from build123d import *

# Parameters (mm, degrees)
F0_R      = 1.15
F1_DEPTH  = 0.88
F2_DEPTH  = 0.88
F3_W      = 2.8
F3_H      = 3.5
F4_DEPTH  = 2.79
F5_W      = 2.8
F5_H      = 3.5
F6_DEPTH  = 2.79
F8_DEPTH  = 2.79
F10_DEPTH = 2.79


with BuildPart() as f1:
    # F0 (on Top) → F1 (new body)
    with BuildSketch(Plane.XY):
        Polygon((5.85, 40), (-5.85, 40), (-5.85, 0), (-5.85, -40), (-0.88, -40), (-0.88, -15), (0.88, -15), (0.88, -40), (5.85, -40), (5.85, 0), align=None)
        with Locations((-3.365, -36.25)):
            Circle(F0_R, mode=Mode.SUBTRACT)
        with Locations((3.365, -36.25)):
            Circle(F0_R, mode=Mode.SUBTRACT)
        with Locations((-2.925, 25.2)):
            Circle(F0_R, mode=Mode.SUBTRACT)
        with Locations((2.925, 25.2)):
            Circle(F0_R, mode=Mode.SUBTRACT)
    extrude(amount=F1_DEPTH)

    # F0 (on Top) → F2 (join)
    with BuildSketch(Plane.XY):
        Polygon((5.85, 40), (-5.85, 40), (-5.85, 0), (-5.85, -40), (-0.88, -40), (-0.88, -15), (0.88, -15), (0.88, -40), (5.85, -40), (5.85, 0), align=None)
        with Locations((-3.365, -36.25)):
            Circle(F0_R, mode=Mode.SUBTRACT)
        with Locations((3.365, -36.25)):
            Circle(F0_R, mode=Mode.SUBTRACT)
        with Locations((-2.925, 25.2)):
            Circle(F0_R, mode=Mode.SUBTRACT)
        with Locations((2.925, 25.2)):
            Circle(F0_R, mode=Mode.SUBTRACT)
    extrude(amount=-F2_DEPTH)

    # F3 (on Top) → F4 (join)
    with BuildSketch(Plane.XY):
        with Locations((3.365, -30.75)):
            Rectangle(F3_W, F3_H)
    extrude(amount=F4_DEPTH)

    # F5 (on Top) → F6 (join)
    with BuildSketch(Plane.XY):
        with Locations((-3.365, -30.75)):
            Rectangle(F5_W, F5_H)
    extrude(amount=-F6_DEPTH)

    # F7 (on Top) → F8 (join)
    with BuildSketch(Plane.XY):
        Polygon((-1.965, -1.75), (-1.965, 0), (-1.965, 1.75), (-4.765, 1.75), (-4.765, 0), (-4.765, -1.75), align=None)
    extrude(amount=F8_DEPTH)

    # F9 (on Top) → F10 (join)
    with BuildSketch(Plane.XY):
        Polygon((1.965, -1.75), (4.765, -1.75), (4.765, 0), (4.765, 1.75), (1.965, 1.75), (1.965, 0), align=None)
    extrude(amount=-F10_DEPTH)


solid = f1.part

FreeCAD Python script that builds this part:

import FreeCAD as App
import Part
import Sketcher

V = App.Vector
Q = App.Units.Quantity

doc = App.newDocument("Part")
params = doc.addObject("Spreadsheet::Sheet", "Params")
for row, (alias, value) in enumerate([
    ("sketch1_diameter", "2.3 mm"),
    ("sketch1_height", "80 mm"),
    ("sketch1_height2", "25 mm"),
    ("sketch1_width", "11.7 mm"),
    ("sketch1_width2", "4.97 mm"),
    ("pad1_length", "0.88 mm"),
    ("sketch2_diameter", "2.3 mm"),
    ("sketch2_height", "80 mm"),
    ("sketch2_height2", "25 mm"),
    ("sketch2_width", "11.7 mm"),
    ("sketch2_width2", "4.97 mm"),
    ("pad2_length", "0.88 mm"),
    ("sketch3_width", "2.8 mm"),
    ("sketch3_height", "3.5 mm"),
    ("pad3_length", "2.79 mm"),
    ("sketch4_width", "2.8 mm"),
    ("sketch4_height", "3.5 mm"),
    ("pad4_length", "2.79 mm"),
    ("sketch5_width", "2.8 mm"),
    ("sketch5_height", "3.5 mm"),
    ("pad5_length", "2.79 mm"),
    ("sketch6_width", "2.8 mm"),
    ("sketch6_height", "3.5 mm"),
    ("pad6_length", "2.79 mm"),
], start=1):
    params.set(f"A{row}", alias)
    params.set(f"B{row}", "=" + value)
    params.setAlias(f"B{row}", alias)

body = doc.addObject("PartDesign::Body", "Body")

# Sketch on XY plane
sketch1 = body.newObject("Sketcher::SketchObject", "Sketch")
sketch1.AttachmentSupport = (doc.getObject("XY_Plane"), [""])
sketch1.MapMode = "FlatFace"
sketch1.addGeometry(Part.LineSegment(V(5.85, 40, 0), V(-5.85, 40, 0)), False)
sketch1.addGeometry(Part.LineSegment(V(-5.85, 40, 0), V(-5.85, -40, 0)), False)
sketch1.addGeometry(Part.LineSegment(V(-5.85, -40, 0), V(-0.88, -40, 0)), False)
sketch1.addGeometry(Part.LineSegment(V(-0.88, -40, 0), V(-0.88, -15, 0)), False)
sketch1.addGeometry(Part.LineSegment(V(-0.88, -15, 0), V(0.88, -15, 0)), False)
sketch1.addGeometry(Part.LineSegment(V(0.88, -15, 0), V(0.88, -40, 0)), False)
sketch1.addGeometry(Part.LineSegment(V(0.88, -40, 0), V(5.85, -40, 0)), False)
sketch1.addGeometry(Part.LineSegment(V(5.85, -40, 0), V(5.85, 40, 0)), False)
sketch1.addGeometry(Part.Circle(V(-3.365, -36.25, 0), V(0, 0, 1), 1.15), False)
sketch1.addGeometry(Part.Circle(V(3.365, -36.25, 0), V(0, 0, 1), 1.15), False)
sketch1.addGeometry(Part.Circle(V(-2.925, 25.2, 0), V(0, 0, 1), 1.15), False)
sketch1.addGeometry(Part.Circle(V(2.925, 25.2, 0), V(0, 0, 1), 1.15), False)
sketch1.addConstraint(Sketcher.Constraint("Coincident", 0, 2, 1, 1))
sketch1.addConstraint(Sketcher.Constraint("Coincident", 1, 2, 2, 1))
sketch1.addConstraint(Sketcher.Constraint("Coincident", 2, 2, 3, 1))
sketch1.addConstraint(Sketcher.Constraint("Coincident", 3, 2, 4, 1))
sketch1.addConstraint(Sketcher.Constraint("Coincident", 4, 2, 5, 1))
sketch1.addConstraint(Sketcher.Constraint("Coincident", 5, 2, 6, 1))
sketch1.addConstraint(Sketcher.Constraint("Coincident", 6, 2, 7, 1))
sketch1.addConstraint(Sketcher.Constraint("Coincident", 7, 2, 0, 1))
sketch1.addConstraint(Sketcher.Constraint("Horizontal", 0))
sketch1.addConstraint(Sketcher.Constraint("Vertical", 1))
sketch1.addConstraint(Sketcher.Constraint("Horizontal", 2))
sketch1.addConstraint(Sketcher.Constraint("Vertical", 3))
sketch1.addConstraint(Sketcher.Constraint("Horizontal", 4))
sketch1.addConstraint(Sketcher.Constraint("Vertical", 5))
sketch1.addConstraint(Sketcher.Constraint("Horizontal", 6))
sketch1.addConstraint(Sketcher.Constraint("Vertical", 7))
sketch1.addConstraint(Sketcher.Constraint("Equal", 8, 9))
sketch1.addConstraint(Sketcher.Constraint("Equal", 9, 10))
sketch1.addConstraint(Sketcher.Constraint("Equal", 10, 11))
sketch1.addConstraint(Sketcher.Constraint("Symmetric", 0, 2, 6, 2, -1, 1))
sketch1.addConstraint(Sketcher.Constraint("Symmetric", 8, 3, 9, 3, -2))
sketch1.addConstraint(Sketcher.Constraint("Symmetric", 10, 3, 11, 3, -2))
sketch1.addConstraint(Sketcher.Constraint("Symmetric", 2, 2, 5, 2, -2))
sketch1.addConstraint(Sketcher.Constraint("Diameter", 8, Q("2.3 mm")))
sketch1.addConstraint(Sketcher.Constraint("DistanceY", 1, 2, 1, 1, Q("80 mm")))
sketch1.addConstraint(Sketcher.Constraint("DistanceY", 3, 1, 3, 2, Q("25 mm")))
sketch1.addConstraint(Sketcher.Constraint("DistanceX", 0, 2, 0, 1, Q("11.7 mm")))
sketch1.addConstraint(Sketcher.Constraint("DistanceX", 2, 1, 2, 2, Q("4.97 mm")))
sketch1.addConstraint(Sketcher.Constraint("DistanceY", -1, 1, 10, 3, Q("25.2 mm")))
sketch1.addConstraint(Sketcher.Constraint("DistanceY", 8, 3, -1, 1, Q("36.25 mm")))
sketch1.addConstraint(Sketcher.Constraint("DistanceX", 8, 3, 9, 3, Q("6.73 mm")))
sketch1.addConstraint(Sketcher.Constraint("DistanceX", 8, 3, 10, 3, Q("0.44 mm")))
sketch1.setExpression("Constraints[23]", "Params.sketch1_diameter")
sketch1.setExpression("Constraints[24]", "Params.sketch1_height")
sketch1.setExpression("Constraints[25]", "Params.sketch1_height2")
sketch1.setExpression("Constraints[26]", "Params.sketch1_width")
sketch1.setExpression("Constraints[27]", "Params.sketch1_width2")
pad1 = body.newObject("PartDesign::Pad", "Pad")
pad1.Profile = sketch1
pad1.setExpression("Length", "Params.pad1_length")

# Sketch on XY plane
sketch2 = body.newObject("Sketcher::SketchObject", "Sketch001")
sketch2.AttachmentSupport = (doc.getObject("XY_Plane"), [""])
sketch2.MapMode = "FlatFace"
sketch2.addGeometry(Part.LineSegment(V(5.85, 40, 0), V(-5.85, 40, 0)), False)
sketch2.addGeometry(Part.LineSegment(V(-5.85, 40, 0), V(-5.85, -40, 0)), False)
sketch2.addGeometry(Part.LineSegment(V(-5.85, -40, 0), V(-0.88, -40, 0)), False)
sketch2.addGeometry(Part.LineSegment(V(-0.88, -40, 0), V(-0.88, -15, 0)), False)
sketch2.addGeometry(Part.LineSegment(V(-0.88, -15, 0), V(0.88, -15, 0)), False)
sketch2.addGeometry(Part.LineSegment(V(0.88, -15, 0), V(0.88, -40, 0)), False)
sketch2.addGeometry(Part.LineSegment(V(0.88, -40, 0), V(5.85, -40, 0)), False)
sketch2.addGeometry(Part.LineSegment(V(5.85, -40, 0), V(5.85, 40, 0)), False)
sketch2.addGeometry(Part.Circle(V(-3.365, -36.25, 0), V(0, 0, 1), 1.15), False)
sketch2.addGeometry(Part.Circle(V(3.365, -36.25, 0), V(0, 0, 1), 1.15), False)
sketch2.addGeometry(Part.Circle(V(-2.925, 25.2, 0), V(0, 0, 1), 1.15), False)
sketch2.addGeometry(Part.Circle(V(2.925, 25.2, 0), V(0, 0, 1), 1.15), False)
sketch2.addConstraint(Sketcher.Constraint("Coincident", 0, 2, 1, 1))
sketch2.addConstraint(Sketcher.Constraint("Coincident", 1, 2, 2, 1))
sketch2.addConstraint(Sketcher.Constraint("Coincident", 2, 2, 3, 1))
sketch2.addConstraint(Sketcher.Constraint("Coincident", 3, 2, 4, 1))
sketch2.addConstraint(Sketcher.Constraint("Coincident", 4, 2, 5, 1))
sketch2.addConstraint(Sketcher.Constraint("Coincident", 5, 2, 6, 1))
sketch2.addConstraint(Sketcher.Constraint("Coincident", 6, 2, 7, 1))
sketch2.addConstraint(Sketcher.Constraint("Coincident", 7, 2, 0, 1))
sketch2.addConstraint(Sketcher.Constraint("Horizontal", 0))
sketch2.addConstraint(Sketcher.Constraint("Vertical", 1))
sketch2.addConstraint(Sketcher.Constraint("Horizontal", 2))
sketch2.addConstraint(Sketcher.Constraint("Vertical", 3))
sketch2.addConstraint(Sketcher.Constraint("Horizontal", 4))
sketch2.addConstraint(Sketcher.Constraint("Vertical", 5))
sketch2.addConstraint(Sketcher.Constraint("Horizontal", 6))
sketch2.addConstraint(Sketcher.Constraint("Vertical", 7))
sketch2.addConstraint(Sketcher.Constraint("Equal", 8, 9))
sketch2.addConstraint(Sketcher.Constraint("Equal", 9, 10))
sketch2.addConstraint(Sketcher.Constraint("Equal", 10, 11))
sketch2.addConstraint(Sketcher.Constraint("Symmetric", 0, 2, 6, 2, -1, 1))
sketch2.addConstraint(Sketcher.Constraint("Symmetric", 8, 3, 9, 3, -2))
sketch2.addConstraint(Sketcher.Constraint("Symmetric", 10, 3, 11, 3, -2))
sketch2.addConstraint(Sketcher.Constraint("Symmetric", 2, 2, 5, 2, -2))
sketch2.addConstraint(Sketcher.Constraint("Diameter", 8, Q("2.3 mm")))
sketch2.addConstraint(Sketcher.Constraint("DistanceY", 1, 2, 1, 1, Q("80 mm")))
sketch2.addConstraint(Sketcher.Constraint("DistanceY", 3, 1, 3, 2, Q("25 mm")))
sketch2.addConstraint(Sketcher.Constraint("DistanceX", 0, 2, 0, 1, Q("11.7 mm")))
sketch2.addConstraint(Sketcher.Constraint("DistanceX", 2, 1, 2, 2, Q("4.97 mm")))
sketch2.addConstraint(Sketcher.Constraint("DistanceY", -1, 1, 10, 3, Q("25.2 mm")))
sketch2.addConstraint(Sketcher.Constraint("DistanceY", 8, 3, -1, 1, Q("36.25 mm")))
sketch2.addConstraint(Sketcher.Constraint("DistanceX", 8, 3, 9, 3, Q("6.73 mm")))
sketch2.addConstraint(Sketcher.Constraint("DistanceX", 8, 3, 10, 3, Q("0.44 mm")))
sketch2.setExpression("Constraints[23]", "Params.sketch2_diameter")
sketch2.setExpression("Constraints[24]", "Params.sketch2_height")
sketch2.setExpression("Constraints[25]", "Params.sketch2_height2")
sketch2.setExpression("Constraints[26]", "Params.sketch2_width")
sketch2.setExpression("Constraints[27]", "Params.sketch2_width2")
pad2 = body.newObject("PartDesign::Pad", "Pad001")
pad2.Profile = sketch2
pad2.setExpression("Length", "Params.pad2_length")
pad2.Reversed = True

# Sketch on XY plane
sketch3 = body.newObject("Sketcher::SketchObject", "Sketch002")
sketch3.AttachmentSupport = (doc.getObject("XY_Plane"), [""])
sketch3.MapMode = "FlatFace"
sketch3.addGeometry(Part.LineSegment(V(1.965, -29, 0), V(1.965, -32.5, 0)), False)
sketch3.addGeometry(Part.LineSegment(V(1.965, -32.5, 0), V(4.765, -32.5, 0)), False)
sketch3.addGeometry(Part.LineSegment(V(4.765, -32.5, 0), V(4.765, -29, 0)), False)
sketch3.addGeometry(Part.LineSegment(V(4.765, -29, 0), V(1.965, -29, 0)), False)
sketch3.addConstraint(Sketcher.Constraint("Coincident", 0, 2, 1, 1))
sketch3.addConstraint(Sketcher.Constraint("Coincident", 1, 2, 2, 1))
sketch3.addConstraint(Sketcher.Constraint("Coincident", 2, 2, 3, 1))
sketch3.addConstraint(Sketcher.Constraint("Coincident", 3, 2, 0, 1))
sketch3.addConstraint(Sketcher.Constraint("Vertical", 0))
sketch3.addConstraint(Sketcher.Constraint("Horizontal", 1))
sketch3.addConstraint(Sketcher.Constraint("Vertical", 2))
sketch3.addConstraint(Sketcher.Constraint("Horizontal", 3))
sketch3.addConstraint(Sketcher.Constraint("DistanceX", 1, 1, 1, 2, Q("2.8 mm")))
sketch3.addConstraint(Sketcher.Constraint("DistanceY", 0, 2, 0, 1, Q("3.5 mm")))
sketch3.addConstraint(Sketcher.Constraint("DistanceY", 2, 2, -1, 1, Q("29 mm")))
sketch3.addConstraint(Sketcher.Constraint("DistanceX", -1, 1, 0, 2, Q("1.965 mm")))
sketch3.setExpression("Constraints[8]", "Params.sketch3_width")
sketch3.setExpression("Constraints[9]", "Params.sketch3_height")
pad3 = body.newObject("PartDesign::Pad", "Pad002")
pad3.Profile = sketch3
pad3.setExpression("Length", "Params.pad3_length")

# Sketch on XY plane
sketch4 = body.newObject("Sketcher::SketchObject", "Sketch003")
sketch4.AttachmentSupport = (doc.getObject("XY_Plane"), [""])
sketch4.MapMode = "FlatFace"
sketch4.addGeometry(Part.LineSegment(V(-4.765, -29, 0), V(-4.765, -32.5, 0)), False)
sketch4.addGeometry(Part.LineSegment(V(-4.765, -32.5, 0), V(-1.965, -32.5, 0)), False)
sketch4.addGeometry(Part.LineSegment(V(-1.965, -32.5, 0), V(-1.965, -29, 0)), False)
sketch4.addGeometry(Part.LineSegment(V(-1.965, -29, 0), V(-4.765, -29, 0)), False)
sketch4.addConstraint(Sketcher.Constraint("Coincident", 0, 2, 1, 1))
sketch4.addConstraint(Sketcher.Constraint("Coincident", 1, 2, 2, 1))
sketch4.addConstraint(Sketcher.Constraint("Coincident", 2, 2, 3, 1))
sketch4.addConstraint(Sketcher.Constraint("Coincident", 3, 2, 0, 1))
sketch4.addConstraint(Sketcher.Constraint("Vertical", 0))
sketch4.addConstraint(Sketcher.Constraint("Horizontal", 1))
sketch4.addConstraint(Sketcher.Constraint("Vertical", 2))
sketch4.addConstraint(Sketcher.Constraint("Horizontal", 3))
sketch4.addConstraint(Sketcher.Constraint("DistanceX", 1, 1, 1, 2, Q("2.8 mm")))
sketch4.addConstraint(Sketcher.Constraint("DistanceY", 0, 2, 0, 1, Q("3.5 mm")))
sketch4.addConstraint(Sketcher.Constraint("DistanceY", 2, 2, -1, 1, Q("29 mm")))
sketch4.addConstraint(Sketcher.Constraint("DistanceX", 0, 2, -1, 1, Q("4.765 mm")))
sketch4.setExpression("Constraints[8]", "Params.sketch4_width")
sketch4.setExpression("Constraints[9]", "Params.sketch4_height")
pad4 = body.newObject("PartDesign::Pad", "Pad003")
pad4.Profile = sketch4
pad4.setExpression("Length", "Params.pad4_length")
pad4.Reversed = True

# Sketch on XY plane
sketch5 = body.newObject("Sketcher::SketchObject", "Sketch004")
sketch5.AttachmentSupport = (doc.getObject("XY_Plane"), [""])
sketch5.MapMode = "FlatFace"
sketch5.addGeometry(Part.LineSegment(V(-1.965, -1.75, 0), V(-1.965, 1.75, 0)), False)
sketch5.addGeometry(Part.LineSegment(V(-1.965, 1.75, 0), V(-4.765, 1.75, 0)), False)
sketch5.addGeometry(Part.LineSegment(V(-4.765, 1.75, 0), V(-4.765, -1.75, 0)), False)
sketch5.addGeometry(Part.LineSegment(V(-4.765, -1.75, 0), V(-1.965, -1.75, 0)), False)
sketch5.addConstraint(Sketcher.Constraint("Coincident", 0, 2, 1, 1))
sketch5.addConstraint(Sketcher.Constraint("Coincident", 1, 2, 2, 1))
sketch5.addConstraint(Sketcher.Constraint("Coincident", 2, 2, 3, 1))
sketch5.addConstraint(Sketcher.Constraint("Coincident", 3, 2, 0, 1))
sketch5.addConstraint(Sketcher.Constraint("Vertical", 0))
sketch5.addConstraint(Sketcher.Constraint("Horizontal", 1))
sketch5.addConstraint(Sketcher.Constraint("Vertical", 2))
sketch5.addConstraint(Sketcher.Constraint("Horizontal", 3))
sketch5.addConstraint(Sketcher.Constraint("DistanceX", 1, 2, 1, 1, Q("2.8 mm")))
sketch5.addConstraint(Sketcher.Constraint("DistanceY", 0, 1, 0, 2, Q("3.5 mm")))
sketch5.addConstraint(Sketcher.Constraint("DistanceY", -1, 1, 0, 2, Q("1.75 mm")))
sketch5.addConstraint(Sketcher.Constraint("DistanceX", 0, 2, -1, 1, Q("1.965 mm")))
sketch5.setExpression("Constraints[8]", "Params.sketch5_width")
sketch5.setExpression("Constraints[9]", "Params.sketch5_height")
pad5 = body.newObject("PartDesign::Pad", "Pad004")
pad5.Profile = sketch5
pad5.setExpression("Length", "Params.pad5_length")

# Sketch on XY plane
sketch6 = body.newObject("Sketcher::SketchObject", "Sketch005")
sketch6.AttachmentSupport = (doc.getObject("XY_Plane"), [""])
sketch6.MapMode = "FlatFace"
sketch6.addGeometry(Part.LineSegment(V(1.965, -1.75, 0), V(4.765, -1.75, 0)), False)
sketch6.addGeometry(Part.LineSegment(V(4.765, -1.75, 0), V(4.765, 1.75, 0)), False)
sketch6.addGeometry(Part.LineSegment(V(4.765, 1.75, 0), V(1.965, 1.75, 0)), False)
sketch6.addGeometry(Part.LineSegment(V(1.965, 1.75, 0), V(1.965, -1.75, 0)), False)
sketch6.addConstraint(Sketcher.Constraint("Coincident", 0, 2, 1, 1))
sketch6.addConstraint(Sketcher.Constraint("Coincident", 1, 2, 2, 1))
sketch6.addConstraint(Sketcher.Constraint("Coincident", 2, 2, 3, 1))
sketch6.addConstraint(Sketcher.Constraint("Coincident", 3, 2, 0, 1))
sketch6.addConstraint(Sketcher.Constraint("Horizontal", 0))
sketch6.addConstraint(Sketcher.Constraint("Vertical", 1))
sketch6.addConstraint(Sketcher.Constraint("Horizontal", 2))
sketch6.addConstraint(Sketcher.Constraint("Vertical", 3))
sketch6.addConstraint(Sketcher.Constraint("DistanceX", 0, 1, 0, 2, Q("2.8 mm")))
sketch6.addConstraint(Sketcher.Constraint("DistanceY", 1, 1, 1, 2, Q("3.5 mm")))
sketch6.addConstraint(Sketcher.Constraint("DistanceY", 0, 2, -1, 1, Q("1.75 mm")))
sketch6.addConstraint(Sketcher.Constraint("DistanceX", -1, 1, 0, 2, Q("4.765 mm")))
sketch6.setExpression("Constraints[8]", "Params.sketch6_width")
sketch6.setExpression("Constraints[9]", "Params.sketch6_height")
pad6 = body.newObject("PartDesign::Pad", "Pad005")
pad6.Profile = sketch6
pad6.setExpression("Length", "Params.pad6_length")
pad6.Reversed = True

doc.recompute()
